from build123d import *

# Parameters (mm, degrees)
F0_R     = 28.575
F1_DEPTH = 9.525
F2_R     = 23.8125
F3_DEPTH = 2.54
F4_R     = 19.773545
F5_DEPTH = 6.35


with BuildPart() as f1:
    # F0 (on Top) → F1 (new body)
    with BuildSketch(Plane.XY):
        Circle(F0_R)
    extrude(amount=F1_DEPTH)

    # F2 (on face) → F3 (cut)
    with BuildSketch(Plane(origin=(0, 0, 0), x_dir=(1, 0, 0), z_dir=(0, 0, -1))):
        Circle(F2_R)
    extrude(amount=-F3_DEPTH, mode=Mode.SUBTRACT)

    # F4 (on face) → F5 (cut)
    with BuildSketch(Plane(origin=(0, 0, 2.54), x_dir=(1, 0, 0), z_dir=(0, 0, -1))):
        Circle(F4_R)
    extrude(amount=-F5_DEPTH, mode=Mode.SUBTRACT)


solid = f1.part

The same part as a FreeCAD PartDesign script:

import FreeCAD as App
import Part
import Sketcher
Q = App.Units.Quantity

doc = App.newDocument("Part")
body = doc.addObject("PartDesign::Body", "Body")

# Sketch on XY plane
sketch1 = body.newObject("Sketcher::SketchObject", "Sketch")
sketch1.AttachmentSupport = (doc.getObject("XY_Plane"), [""])
sketch1.MapMode = "FlatFace"
sketch1.addGeometry(Part.Circle(App.Vector(0, 0, 0), App.Vector(0, 0, 1), 29), False)
sketch1.addConstraint([
    Sketcher.Constraint("Coincident", 0, 3, -1, 1),
    Sketcher.Constraint("Diameter", 0, Q("2.25 in")),
])
pad1 = body.newObject("PartDesign::Pad", "Pad")
pad1.Profile = sketch1
pad1.Length = Q("0.375 in")

# Sketch on XY plane
sketch2 = body.newObject("Sketcher::SketchObject", "Sketch001")
sketch2.AttachmentSupport = (doc.getObject("XY_Plane"), [""])
sketch2.MapMode = "FlatFace"
sketch2.addGeometry(Part.Circle(App.Vector(0, 0, 0), App.Vector(0, 0, 1), 24), False)
sketch2.addConstraint([
    Sketcher.Constraint("Coincident", 0, 3, -1, 1),
    Sketcher.Constraint("Diameter", 0, Q("1.875 in")),
])
pocket1 = body.newObject("PartDesign::Pocket", "Pocket")
pocket1.Profile = sketch2
pocket1.Length = Q("0.1 in")
pocket1.Reversed = True

# Sketch on XY plane
sketch3 = body.newObject("Sketcher::SketchObject", "Sketch002")
sketch3.AttachmentSupport = (doc.getObject("XY_Plane"), [""])
sketch3.MapMode = "FlatFace"
sketch3.AttachmentOffset = App.Placement(App.Vector(0, 0, 0.1 * 25.4), App.Rotation())
sketch3.addGeometry(Part.Circle(App.Vector(0, 0, 0), App.Vector(0, 0, 1), 20), False)
sketch3.addConstraint([
    Sketcher.Constraint("Coincident", 0, 3, -1, 1),
    Sketcher.Constraint("Diameter", 0, 39.54709),
])
pocket2 = body.newObject("PartDesign::Pocket", "Pocket001")
pocket2.Profile = sketch3
pocket2.Length = Q("0.25 in")
pocket2.Reversed = True

doc.recompute()
